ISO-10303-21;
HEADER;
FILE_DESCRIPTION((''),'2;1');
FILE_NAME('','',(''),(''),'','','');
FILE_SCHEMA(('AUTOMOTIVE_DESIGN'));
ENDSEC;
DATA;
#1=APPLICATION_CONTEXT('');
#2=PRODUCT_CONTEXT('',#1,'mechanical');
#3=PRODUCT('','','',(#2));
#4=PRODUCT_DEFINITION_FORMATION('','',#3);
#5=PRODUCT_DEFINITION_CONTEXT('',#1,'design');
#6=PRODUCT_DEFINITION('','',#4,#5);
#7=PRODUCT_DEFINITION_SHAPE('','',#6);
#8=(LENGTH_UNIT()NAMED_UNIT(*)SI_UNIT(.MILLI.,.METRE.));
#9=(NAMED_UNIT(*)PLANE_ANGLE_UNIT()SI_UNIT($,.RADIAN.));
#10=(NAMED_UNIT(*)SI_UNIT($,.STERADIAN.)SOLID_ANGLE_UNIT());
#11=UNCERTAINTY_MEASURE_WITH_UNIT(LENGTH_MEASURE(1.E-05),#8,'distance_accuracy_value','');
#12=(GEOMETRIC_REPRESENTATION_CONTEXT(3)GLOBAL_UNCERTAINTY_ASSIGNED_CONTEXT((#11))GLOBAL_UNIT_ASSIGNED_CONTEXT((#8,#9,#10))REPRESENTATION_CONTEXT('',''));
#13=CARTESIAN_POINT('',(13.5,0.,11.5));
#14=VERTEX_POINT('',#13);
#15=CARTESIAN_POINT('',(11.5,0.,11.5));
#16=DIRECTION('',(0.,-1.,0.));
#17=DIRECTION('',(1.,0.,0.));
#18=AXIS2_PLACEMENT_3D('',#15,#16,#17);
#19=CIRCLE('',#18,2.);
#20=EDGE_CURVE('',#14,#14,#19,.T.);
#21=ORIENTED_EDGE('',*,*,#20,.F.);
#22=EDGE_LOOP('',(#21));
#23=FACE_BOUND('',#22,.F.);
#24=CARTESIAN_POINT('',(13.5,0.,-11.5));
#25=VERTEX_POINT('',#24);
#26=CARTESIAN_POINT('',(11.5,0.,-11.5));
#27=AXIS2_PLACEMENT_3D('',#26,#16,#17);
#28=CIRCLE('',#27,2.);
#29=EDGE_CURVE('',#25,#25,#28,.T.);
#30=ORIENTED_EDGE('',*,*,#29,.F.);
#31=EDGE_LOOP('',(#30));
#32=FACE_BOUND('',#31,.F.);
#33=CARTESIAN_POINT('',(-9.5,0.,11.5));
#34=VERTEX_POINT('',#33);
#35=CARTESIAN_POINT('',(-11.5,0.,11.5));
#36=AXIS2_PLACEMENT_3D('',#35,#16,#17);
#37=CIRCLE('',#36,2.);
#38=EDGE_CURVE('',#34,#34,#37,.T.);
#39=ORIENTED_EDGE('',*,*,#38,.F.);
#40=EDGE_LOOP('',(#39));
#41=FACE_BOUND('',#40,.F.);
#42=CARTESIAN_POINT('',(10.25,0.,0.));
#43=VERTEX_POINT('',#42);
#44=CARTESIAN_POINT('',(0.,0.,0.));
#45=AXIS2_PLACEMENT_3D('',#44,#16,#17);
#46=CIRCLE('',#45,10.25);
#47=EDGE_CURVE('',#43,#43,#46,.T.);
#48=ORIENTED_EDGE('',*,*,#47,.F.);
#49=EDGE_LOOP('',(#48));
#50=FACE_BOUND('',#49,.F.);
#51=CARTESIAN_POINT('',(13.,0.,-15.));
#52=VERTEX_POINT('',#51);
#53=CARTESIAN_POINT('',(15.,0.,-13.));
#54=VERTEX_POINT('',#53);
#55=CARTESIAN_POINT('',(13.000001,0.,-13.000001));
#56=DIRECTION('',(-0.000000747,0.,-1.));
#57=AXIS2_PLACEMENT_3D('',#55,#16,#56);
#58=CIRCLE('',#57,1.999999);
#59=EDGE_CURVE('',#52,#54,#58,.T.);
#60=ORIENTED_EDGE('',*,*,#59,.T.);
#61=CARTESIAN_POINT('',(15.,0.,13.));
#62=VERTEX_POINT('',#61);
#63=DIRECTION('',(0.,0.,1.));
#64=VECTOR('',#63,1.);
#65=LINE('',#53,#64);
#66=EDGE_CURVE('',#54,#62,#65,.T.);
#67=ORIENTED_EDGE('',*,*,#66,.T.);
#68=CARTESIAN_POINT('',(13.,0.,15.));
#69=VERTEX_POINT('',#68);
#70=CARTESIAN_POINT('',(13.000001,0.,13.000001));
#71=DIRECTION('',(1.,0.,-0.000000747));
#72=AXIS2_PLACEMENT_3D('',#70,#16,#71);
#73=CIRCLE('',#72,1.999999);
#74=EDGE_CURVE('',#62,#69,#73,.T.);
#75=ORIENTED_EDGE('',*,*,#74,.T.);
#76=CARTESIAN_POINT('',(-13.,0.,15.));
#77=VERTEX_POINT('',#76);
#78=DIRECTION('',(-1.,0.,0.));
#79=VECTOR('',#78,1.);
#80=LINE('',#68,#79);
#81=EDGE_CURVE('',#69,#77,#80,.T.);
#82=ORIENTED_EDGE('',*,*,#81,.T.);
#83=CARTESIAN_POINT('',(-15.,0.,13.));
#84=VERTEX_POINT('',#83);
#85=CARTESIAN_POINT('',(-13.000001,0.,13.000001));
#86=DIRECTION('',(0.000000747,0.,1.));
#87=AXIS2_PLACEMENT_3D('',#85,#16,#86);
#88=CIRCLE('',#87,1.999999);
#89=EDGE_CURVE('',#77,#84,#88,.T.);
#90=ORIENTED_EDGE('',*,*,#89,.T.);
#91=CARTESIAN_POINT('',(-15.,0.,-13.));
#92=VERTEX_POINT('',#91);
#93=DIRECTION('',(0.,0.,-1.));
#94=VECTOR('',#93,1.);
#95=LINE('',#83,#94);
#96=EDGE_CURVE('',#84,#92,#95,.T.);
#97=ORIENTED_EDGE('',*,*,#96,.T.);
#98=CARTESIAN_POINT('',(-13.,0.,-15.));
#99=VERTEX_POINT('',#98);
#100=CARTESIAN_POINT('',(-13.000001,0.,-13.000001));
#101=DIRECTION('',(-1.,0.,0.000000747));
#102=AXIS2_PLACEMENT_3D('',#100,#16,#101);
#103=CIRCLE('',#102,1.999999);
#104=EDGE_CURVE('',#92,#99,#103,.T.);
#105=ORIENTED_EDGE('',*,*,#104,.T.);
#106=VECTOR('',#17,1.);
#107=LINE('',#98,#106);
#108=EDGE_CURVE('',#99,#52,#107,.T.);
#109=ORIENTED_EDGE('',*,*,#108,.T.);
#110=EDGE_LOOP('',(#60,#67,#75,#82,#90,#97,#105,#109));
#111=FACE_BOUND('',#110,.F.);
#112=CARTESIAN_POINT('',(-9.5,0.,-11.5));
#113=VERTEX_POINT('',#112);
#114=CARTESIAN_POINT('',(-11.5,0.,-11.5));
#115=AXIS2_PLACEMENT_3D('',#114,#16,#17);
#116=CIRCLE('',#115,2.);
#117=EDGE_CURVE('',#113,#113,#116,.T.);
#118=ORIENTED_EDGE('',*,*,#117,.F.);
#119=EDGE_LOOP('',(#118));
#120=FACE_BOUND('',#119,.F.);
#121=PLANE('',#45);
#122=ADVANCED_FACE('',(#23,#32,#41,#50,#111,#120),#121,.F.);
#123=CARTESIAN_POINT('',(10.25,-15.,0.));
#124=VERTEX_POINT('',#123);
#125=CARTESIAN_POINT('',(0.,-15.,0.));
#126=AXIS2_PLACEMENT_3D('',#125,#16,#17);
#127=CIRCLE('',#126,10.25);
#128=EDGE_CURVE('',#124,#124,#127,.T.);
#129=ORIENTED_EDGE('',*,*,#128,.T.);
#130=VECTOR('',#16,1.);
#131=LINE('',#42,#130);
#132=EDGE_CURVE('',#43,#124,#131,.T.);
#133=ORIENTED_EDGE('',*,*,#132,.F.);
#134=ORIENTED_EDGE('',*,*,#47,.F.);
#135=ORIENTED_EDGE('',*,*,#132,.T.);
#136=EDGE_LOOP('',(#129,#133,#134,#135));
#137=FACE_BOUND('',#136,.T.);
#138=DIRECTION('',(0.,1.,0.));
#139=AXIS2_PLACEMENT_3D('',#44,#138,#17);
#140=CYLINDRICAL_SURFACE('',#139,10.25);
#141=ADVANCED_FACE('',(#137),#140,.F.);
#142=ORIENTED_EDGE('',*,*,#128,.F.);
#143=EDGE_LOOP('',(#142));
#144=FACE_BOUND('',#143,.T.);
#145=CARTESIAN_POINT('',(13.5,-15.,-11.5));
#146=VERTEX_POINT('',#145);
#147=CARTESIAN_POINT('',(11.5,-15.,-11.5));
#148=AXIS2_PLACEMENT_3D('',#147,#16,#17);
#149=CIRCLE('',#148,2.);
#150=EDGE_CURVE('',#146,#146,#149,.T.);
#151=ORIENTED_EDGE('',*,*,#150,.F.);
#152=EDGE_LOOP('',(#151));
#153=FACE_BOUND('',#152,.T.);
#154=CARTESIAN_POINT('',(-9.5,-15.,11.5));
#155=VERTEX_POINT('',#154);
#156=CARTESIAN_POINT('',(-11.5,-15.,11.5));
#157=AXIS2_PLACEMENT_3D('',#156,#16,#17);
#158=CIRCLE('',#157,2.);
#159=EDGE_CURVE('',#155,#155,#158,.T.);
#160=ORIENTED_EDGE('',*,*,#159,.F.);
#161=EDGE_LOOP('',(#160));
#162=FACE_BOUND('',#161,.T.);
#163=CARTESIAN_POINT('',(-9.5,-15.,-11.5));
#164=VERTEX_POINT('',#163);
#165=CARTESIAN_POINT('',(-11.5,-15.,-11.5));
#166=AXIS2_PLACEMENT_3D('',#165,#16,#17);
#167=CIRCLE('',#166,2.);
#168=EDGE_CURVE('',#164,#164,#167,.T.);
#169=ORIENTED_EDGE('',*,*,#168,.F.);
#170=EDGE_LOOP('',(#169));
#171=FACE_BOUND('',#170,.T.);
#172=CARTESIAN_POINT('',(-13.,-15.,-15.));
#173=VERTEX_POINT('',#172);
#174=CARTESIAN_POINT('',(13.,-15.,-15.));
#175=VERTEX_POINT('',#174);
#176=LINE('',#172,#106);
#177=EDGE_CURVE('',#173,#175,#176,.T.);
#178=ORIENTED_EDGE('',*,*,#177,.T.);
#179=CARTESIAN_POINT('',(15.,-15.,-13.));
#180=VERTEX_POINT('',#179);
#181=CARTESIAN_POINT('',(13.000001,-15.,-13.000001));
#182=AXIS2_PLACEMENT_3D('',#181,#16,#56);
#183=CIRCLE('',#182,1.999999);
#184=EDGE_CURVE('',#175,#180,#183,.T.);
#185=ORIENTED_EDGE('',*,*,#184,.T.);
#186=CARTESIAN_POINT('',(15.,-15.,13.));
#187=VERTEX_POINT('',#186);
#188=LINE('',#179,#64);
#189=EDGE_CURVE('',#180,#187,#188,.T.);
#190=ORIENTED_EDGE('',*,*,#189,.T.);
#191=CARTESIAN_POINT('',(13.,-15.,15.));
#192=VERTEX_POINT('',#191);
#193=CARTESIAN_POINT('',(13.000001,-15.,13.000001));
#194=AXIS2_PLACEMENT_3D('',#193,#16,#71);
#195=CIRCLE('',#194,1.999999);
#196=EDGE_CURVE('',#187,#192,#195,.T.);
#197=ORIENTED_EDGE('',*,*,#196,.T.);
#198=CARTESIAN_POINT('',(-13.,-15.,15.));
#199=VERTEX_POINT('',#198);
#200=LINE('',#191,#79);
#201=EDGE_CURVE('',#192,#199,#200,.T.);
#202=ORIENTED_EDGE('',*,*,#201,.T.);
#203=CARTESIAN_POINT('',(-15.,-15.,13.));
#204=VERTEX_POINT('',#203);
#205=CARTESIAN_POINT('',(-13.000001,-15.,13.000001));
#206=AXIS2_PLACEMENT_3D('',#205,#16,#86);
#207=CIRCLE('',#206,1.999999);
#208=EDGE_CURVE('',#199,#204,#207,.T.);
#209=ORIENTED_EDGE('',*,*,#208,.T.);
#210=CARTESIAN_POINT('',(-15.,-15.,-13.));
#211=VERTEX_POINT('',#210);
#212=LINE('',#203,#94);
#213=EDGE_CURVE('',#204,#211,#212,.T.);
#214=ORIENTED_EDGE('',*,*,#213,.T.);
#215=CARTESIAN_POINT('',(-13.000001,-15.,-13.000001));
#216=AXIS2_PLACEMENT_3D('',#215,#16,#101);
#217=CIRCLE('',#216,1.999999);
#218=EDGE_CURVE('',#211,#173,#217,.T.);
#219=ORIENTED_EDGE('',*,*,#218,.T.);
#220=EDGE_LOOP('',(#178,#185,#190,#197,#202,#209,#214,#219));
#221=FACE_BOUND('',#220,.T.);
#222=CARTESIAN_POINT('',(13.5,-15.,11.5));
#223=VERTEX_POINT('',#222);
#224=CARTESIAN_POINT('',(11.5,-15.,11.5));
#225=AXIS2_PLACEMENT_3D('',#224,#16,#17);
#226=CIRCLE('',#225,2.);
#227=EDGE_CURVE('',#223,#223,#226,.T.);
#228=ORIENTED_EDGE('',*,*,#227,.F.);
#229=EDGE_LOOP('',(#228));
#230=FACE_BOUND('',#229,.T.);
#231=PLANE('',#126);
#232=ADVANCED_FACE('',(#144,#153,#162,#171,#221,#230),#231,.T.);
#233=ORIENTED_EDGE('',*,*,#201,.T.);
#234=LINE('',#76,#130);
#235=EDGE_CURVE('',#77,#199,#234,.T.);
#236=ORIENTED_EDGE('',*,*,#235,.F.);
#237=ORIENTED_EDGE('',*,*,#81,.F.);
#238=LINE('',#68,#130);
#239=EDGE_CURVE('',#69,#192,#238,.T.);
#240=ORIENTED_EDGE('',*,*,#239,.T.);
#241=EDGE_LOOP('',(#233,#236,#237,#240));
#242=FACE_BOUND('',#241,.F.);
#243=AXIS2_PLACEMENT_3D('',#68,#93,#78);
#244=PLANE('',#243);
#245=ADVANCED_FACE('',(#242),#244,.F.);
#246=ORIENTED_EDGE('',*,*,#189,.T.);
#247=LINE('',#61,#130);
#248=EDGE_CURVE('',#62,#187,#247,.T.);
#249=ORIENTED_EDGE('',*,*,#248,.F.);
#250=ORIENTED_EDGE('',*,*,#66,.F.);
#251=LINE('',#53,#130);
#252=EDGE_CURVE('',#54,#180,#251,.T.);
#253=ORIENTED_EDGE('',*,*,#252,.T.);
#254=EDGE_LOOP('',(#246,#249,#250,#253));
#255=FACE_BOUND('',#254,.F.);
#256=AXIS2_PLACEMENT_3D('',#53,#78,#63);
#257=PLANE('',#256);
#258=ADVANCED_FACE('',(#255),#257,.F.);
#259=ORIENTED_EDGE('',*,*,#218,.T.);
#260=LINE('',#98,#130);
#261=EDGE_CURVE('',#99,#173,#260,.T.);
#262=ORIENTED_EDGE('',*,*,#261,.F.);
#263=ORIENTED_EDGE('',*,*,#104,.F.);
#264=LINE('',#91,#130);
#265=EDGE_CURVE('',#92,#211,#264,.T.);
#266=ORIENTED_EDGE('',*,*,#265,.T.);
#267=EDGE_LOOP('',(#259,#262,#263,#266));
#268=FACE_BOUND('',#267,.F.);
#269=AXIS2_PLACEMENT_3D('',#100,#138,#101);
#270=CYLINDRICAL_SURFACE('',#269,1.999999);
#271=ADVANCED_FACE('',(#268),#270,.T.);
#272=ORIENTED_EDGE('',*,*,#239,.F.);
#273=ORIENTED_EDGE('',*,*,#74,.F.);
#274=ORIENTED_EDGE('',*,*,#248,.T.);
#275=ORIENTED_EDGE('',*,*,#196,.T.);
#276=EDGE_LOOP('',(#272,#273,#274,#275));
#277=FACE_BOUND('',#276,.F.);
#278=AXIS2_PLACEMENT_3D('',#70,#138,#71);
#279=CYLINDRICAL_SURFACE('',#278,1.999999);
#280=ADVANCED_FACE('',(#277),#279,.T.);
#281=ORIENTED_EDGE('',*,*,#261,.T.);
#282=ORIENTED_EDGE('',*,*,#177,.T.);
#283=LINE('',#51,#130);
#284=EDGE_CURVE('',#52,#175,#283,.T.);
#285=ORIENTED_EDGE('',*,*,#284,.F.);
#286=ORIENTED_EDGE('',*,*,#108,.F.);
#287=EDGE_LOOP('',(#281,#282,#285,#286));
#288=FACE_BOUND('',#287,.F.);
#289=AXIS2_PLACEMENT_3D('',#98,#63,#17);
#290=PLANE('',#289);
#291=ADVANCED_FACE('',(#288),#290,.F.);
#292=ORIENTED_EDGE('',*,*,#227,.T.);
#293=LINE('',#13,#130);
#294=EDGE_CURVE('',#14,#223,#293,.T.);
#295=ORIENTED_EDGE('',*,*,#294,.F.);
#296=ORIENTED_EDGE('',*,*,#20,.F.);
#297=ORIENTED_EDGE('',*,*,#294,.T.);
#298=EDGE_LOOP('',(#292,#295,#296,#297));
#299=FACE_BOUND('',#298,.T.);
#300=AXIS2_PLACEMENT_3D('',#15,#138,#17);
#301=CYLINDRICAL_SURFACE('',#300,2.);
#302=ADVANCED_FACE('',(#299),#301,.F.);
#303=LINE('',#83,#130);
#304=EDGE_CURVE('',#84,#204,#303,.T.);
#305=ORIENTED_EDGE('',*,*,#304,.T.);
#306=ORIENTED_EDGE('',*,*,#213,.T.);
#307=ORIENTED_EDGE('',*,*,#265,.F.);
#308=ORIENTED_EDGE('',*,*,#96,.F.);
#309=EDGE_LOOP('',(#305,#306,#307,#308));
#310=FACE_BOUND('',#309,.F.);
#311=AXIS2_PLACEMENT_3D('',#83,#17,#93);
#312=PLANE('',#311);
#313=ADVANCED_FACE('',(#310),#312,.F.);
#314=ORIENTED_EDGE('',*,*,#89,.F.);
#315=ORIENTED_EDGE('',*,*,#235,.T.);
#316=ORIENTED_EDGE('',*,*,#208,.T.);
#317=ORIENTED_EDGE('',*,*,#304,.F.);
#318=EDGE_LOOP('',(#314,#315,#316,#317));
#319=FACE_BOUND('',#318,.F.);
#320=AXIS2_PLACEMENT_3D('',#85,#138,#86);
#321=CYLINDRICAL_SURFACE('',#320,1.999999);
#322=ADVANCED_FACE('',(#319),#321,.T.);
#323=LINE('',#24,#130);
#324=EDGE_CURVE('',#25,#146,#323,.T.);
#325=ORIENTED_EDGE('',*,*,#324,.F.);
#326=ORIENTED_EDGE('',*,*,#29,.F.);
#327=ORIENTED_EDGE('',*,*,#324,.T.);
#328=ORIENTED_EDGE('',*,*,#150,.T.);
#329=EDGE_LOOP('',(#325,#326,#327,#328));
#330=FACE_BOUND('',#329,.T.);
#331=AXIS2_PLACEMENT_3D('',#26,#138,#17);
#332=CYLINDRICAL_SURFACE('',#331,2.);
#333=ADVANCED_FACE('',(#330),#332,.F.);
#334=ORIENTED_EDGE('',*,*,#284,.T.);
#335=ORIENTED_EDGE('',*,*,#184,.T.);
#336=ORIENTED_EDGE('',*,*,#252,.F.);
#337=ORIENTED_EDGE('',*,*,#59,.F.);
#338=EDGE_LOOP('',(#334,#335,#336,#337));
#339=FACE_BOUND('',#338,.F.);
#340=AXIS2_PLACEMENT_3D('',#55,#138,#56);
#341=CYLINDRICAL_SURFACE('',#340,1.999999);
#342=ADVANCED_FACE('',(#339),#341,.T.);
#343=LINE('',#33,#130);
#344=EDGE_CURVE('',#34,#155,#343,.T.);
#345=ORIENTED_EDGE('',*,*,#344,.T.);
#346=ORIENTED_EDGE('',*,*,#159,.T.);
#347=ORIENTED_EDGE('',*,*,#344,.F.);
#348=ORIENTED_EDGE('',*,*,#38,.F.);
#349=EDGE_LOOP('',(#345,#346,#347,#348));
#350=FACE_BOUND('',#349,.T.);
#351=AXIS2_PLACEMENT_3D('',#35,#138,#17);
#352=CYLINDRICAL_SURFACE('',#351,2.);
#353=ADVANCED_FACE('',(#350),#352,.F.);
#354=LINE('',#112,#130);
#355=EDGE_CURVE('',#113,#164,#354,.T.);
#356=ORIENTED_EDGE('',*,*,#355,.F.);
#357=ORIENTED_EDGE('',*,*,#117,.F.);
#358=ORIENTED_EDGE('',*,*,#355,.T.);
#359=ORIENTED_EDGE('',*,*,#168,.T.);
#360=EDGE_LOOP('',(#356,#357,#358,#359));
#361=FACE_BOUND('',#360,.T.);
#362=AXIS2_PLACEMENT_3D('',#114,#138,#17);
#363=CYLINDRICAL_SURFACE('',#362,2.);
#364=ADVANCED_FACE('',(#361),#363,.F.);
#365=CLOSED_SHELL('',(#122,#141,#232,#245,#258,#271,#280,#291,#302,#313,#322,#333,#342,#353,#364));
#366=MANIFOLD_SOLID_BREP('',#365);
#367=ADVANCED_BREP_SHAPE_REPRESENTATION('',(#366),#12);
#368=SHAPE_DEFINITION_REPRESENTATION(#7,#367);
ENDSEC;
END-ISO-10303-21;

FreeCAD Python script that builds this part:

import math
import FreeCAD as App
import Part
import Sketcher

V = App.Vector

doc = App.newDocument("Part")
body = doc.addObject("PartDesign::Body", "Body")

sketch1 = body.newObject("Sketcher::SketchObject", "Sketch")
sketch1.AttachmentSupport = (doc.getObject("XZ_Plane"), [""])
sketch1.MapMode = "FlatFace"
sketch1.addGeometry([
    Part.LineSegment(V(13, 15, 0), V(-13, 15, 0)),
    Part.ArcOfCircle(Part.Circle(V(-13, 13, 0), V(0, 0, 1), 2), math.radians(90), math.radians(180)),
    Part.LineSegment(V(-15, 13, 0), V(-15, -13, 0)),
    Part.ArcOfCircle(Part.Circle(V(-13, -13, 0), V(0, 0, 1), 2), math.radians(180), math.radians(270)),
    Part.LineSegment(V(-13, -15, 0), V(13, -15, 0)),
    Part.ArcOfCircle(Part.Circle(V(13, -13, 0), V(0, 0, 1), 2), math.radians(-90), math.radians(0)),
    Part.LineSegment(V(15, -13, 0), V(15, 13, 0)),
    Part.ArcOfCircle(Part.Circle(V(13, 13, 0), V(0, 0, 1), 2), math.radians(0), math.radians(90)),
    Part.Circle(V(-11.5, -11.5, 0), V(0, 0, 1), 2),
    Part.Circle(V(11.5, -11.5, 0), V(0, 0, 1), 2),
    Part.Circle(V(-11.5, 11.5, 0), V(0, 0, 1), 2),
    Part.Circle(V(0, 0, 0), V(0, 0, 1), 10.2),
    Part.Circle(V(11.5, 11.5, 0), V(0, 0, 1), 2),
], False)
sketch1.addConstraint([
    Sketcher.Constraint("Tangent", 0, 2, 1, 1),
    Sketcher.Constraint("Tangent", 1, 2, 2, 1),
    Sketcher.Constraint("Tangent", 2, 2, 3, 1),
    Sketcher.Constraint("Tangent", 3, 2, 4, 1),
    Sketcher.Constraint("Tangent", 4, 2, 5, 1),
    Sketcher.Constraint("Tangent", 5, 2, 6, 1),
    Sketcher.Constraint("Tangent", 6, 2, 7, 1),
    Sketcher.Constraint("Tangent", 7, 2, 0, 1),
    Sketcher.Constraint("Horizontal", 0),
    Sketcher.Constraint("Vertical", 2),
    Sketcher.Constraint("Horizontal", 4),
    Sketcher.Constraint("Vertical", 6),
    Sketcher.Constraint("Coincident", 11, 3, -1, 1),
    Sketcher.Constraint("Equal", 1, 3),
    Sketcher.Constraint("Equal", 3, 5),
    Sketcher.Constraint("Equal", 5, 7),
    Sketcher.Constraint("Equal", 7, 8),
    Sketcher.Constraint("Equal", 8, 9),
    Sketcher.Constraint("Equal", 9, 10),
    Sketcher.Constraint("Equal", 10, 12),
    Sketcher.Constraint("Symmetric", 1, 3, 5, 3, -1, 1),
    Sketcher.Constraint("Symmetric", 9, 3, 10, 3, -1, 1),
    Sketcher.Constraint("Symmetric", 8, 3, 12, 3, -1, 1),
    Sketcher.Constraint("Symmetric", 8, 3, 9, 3, -2),
    Sketcher.Constraint("Equal", 4, 2),
    Sketcher.Constraint("Diameter", 8, 4.0),
    Sketcher.Constraint("Diameter", 11, 20.5),
    Sketcher.Constraint("DistanceX", 0, 2, 0, 1, 26.0),
    Sketcher.Constraint("DistanceX", 8, 3, 9, 3, 23.0),
    Sketcher.Constraint("DistanceY", 8, 3, 10, 3, 23.0),
])
pad1 = body.newObject("PartDesign::Pad", "Pad")
pad1.Profile = sketch1
pad1.Length = 15

doc.recompute()
